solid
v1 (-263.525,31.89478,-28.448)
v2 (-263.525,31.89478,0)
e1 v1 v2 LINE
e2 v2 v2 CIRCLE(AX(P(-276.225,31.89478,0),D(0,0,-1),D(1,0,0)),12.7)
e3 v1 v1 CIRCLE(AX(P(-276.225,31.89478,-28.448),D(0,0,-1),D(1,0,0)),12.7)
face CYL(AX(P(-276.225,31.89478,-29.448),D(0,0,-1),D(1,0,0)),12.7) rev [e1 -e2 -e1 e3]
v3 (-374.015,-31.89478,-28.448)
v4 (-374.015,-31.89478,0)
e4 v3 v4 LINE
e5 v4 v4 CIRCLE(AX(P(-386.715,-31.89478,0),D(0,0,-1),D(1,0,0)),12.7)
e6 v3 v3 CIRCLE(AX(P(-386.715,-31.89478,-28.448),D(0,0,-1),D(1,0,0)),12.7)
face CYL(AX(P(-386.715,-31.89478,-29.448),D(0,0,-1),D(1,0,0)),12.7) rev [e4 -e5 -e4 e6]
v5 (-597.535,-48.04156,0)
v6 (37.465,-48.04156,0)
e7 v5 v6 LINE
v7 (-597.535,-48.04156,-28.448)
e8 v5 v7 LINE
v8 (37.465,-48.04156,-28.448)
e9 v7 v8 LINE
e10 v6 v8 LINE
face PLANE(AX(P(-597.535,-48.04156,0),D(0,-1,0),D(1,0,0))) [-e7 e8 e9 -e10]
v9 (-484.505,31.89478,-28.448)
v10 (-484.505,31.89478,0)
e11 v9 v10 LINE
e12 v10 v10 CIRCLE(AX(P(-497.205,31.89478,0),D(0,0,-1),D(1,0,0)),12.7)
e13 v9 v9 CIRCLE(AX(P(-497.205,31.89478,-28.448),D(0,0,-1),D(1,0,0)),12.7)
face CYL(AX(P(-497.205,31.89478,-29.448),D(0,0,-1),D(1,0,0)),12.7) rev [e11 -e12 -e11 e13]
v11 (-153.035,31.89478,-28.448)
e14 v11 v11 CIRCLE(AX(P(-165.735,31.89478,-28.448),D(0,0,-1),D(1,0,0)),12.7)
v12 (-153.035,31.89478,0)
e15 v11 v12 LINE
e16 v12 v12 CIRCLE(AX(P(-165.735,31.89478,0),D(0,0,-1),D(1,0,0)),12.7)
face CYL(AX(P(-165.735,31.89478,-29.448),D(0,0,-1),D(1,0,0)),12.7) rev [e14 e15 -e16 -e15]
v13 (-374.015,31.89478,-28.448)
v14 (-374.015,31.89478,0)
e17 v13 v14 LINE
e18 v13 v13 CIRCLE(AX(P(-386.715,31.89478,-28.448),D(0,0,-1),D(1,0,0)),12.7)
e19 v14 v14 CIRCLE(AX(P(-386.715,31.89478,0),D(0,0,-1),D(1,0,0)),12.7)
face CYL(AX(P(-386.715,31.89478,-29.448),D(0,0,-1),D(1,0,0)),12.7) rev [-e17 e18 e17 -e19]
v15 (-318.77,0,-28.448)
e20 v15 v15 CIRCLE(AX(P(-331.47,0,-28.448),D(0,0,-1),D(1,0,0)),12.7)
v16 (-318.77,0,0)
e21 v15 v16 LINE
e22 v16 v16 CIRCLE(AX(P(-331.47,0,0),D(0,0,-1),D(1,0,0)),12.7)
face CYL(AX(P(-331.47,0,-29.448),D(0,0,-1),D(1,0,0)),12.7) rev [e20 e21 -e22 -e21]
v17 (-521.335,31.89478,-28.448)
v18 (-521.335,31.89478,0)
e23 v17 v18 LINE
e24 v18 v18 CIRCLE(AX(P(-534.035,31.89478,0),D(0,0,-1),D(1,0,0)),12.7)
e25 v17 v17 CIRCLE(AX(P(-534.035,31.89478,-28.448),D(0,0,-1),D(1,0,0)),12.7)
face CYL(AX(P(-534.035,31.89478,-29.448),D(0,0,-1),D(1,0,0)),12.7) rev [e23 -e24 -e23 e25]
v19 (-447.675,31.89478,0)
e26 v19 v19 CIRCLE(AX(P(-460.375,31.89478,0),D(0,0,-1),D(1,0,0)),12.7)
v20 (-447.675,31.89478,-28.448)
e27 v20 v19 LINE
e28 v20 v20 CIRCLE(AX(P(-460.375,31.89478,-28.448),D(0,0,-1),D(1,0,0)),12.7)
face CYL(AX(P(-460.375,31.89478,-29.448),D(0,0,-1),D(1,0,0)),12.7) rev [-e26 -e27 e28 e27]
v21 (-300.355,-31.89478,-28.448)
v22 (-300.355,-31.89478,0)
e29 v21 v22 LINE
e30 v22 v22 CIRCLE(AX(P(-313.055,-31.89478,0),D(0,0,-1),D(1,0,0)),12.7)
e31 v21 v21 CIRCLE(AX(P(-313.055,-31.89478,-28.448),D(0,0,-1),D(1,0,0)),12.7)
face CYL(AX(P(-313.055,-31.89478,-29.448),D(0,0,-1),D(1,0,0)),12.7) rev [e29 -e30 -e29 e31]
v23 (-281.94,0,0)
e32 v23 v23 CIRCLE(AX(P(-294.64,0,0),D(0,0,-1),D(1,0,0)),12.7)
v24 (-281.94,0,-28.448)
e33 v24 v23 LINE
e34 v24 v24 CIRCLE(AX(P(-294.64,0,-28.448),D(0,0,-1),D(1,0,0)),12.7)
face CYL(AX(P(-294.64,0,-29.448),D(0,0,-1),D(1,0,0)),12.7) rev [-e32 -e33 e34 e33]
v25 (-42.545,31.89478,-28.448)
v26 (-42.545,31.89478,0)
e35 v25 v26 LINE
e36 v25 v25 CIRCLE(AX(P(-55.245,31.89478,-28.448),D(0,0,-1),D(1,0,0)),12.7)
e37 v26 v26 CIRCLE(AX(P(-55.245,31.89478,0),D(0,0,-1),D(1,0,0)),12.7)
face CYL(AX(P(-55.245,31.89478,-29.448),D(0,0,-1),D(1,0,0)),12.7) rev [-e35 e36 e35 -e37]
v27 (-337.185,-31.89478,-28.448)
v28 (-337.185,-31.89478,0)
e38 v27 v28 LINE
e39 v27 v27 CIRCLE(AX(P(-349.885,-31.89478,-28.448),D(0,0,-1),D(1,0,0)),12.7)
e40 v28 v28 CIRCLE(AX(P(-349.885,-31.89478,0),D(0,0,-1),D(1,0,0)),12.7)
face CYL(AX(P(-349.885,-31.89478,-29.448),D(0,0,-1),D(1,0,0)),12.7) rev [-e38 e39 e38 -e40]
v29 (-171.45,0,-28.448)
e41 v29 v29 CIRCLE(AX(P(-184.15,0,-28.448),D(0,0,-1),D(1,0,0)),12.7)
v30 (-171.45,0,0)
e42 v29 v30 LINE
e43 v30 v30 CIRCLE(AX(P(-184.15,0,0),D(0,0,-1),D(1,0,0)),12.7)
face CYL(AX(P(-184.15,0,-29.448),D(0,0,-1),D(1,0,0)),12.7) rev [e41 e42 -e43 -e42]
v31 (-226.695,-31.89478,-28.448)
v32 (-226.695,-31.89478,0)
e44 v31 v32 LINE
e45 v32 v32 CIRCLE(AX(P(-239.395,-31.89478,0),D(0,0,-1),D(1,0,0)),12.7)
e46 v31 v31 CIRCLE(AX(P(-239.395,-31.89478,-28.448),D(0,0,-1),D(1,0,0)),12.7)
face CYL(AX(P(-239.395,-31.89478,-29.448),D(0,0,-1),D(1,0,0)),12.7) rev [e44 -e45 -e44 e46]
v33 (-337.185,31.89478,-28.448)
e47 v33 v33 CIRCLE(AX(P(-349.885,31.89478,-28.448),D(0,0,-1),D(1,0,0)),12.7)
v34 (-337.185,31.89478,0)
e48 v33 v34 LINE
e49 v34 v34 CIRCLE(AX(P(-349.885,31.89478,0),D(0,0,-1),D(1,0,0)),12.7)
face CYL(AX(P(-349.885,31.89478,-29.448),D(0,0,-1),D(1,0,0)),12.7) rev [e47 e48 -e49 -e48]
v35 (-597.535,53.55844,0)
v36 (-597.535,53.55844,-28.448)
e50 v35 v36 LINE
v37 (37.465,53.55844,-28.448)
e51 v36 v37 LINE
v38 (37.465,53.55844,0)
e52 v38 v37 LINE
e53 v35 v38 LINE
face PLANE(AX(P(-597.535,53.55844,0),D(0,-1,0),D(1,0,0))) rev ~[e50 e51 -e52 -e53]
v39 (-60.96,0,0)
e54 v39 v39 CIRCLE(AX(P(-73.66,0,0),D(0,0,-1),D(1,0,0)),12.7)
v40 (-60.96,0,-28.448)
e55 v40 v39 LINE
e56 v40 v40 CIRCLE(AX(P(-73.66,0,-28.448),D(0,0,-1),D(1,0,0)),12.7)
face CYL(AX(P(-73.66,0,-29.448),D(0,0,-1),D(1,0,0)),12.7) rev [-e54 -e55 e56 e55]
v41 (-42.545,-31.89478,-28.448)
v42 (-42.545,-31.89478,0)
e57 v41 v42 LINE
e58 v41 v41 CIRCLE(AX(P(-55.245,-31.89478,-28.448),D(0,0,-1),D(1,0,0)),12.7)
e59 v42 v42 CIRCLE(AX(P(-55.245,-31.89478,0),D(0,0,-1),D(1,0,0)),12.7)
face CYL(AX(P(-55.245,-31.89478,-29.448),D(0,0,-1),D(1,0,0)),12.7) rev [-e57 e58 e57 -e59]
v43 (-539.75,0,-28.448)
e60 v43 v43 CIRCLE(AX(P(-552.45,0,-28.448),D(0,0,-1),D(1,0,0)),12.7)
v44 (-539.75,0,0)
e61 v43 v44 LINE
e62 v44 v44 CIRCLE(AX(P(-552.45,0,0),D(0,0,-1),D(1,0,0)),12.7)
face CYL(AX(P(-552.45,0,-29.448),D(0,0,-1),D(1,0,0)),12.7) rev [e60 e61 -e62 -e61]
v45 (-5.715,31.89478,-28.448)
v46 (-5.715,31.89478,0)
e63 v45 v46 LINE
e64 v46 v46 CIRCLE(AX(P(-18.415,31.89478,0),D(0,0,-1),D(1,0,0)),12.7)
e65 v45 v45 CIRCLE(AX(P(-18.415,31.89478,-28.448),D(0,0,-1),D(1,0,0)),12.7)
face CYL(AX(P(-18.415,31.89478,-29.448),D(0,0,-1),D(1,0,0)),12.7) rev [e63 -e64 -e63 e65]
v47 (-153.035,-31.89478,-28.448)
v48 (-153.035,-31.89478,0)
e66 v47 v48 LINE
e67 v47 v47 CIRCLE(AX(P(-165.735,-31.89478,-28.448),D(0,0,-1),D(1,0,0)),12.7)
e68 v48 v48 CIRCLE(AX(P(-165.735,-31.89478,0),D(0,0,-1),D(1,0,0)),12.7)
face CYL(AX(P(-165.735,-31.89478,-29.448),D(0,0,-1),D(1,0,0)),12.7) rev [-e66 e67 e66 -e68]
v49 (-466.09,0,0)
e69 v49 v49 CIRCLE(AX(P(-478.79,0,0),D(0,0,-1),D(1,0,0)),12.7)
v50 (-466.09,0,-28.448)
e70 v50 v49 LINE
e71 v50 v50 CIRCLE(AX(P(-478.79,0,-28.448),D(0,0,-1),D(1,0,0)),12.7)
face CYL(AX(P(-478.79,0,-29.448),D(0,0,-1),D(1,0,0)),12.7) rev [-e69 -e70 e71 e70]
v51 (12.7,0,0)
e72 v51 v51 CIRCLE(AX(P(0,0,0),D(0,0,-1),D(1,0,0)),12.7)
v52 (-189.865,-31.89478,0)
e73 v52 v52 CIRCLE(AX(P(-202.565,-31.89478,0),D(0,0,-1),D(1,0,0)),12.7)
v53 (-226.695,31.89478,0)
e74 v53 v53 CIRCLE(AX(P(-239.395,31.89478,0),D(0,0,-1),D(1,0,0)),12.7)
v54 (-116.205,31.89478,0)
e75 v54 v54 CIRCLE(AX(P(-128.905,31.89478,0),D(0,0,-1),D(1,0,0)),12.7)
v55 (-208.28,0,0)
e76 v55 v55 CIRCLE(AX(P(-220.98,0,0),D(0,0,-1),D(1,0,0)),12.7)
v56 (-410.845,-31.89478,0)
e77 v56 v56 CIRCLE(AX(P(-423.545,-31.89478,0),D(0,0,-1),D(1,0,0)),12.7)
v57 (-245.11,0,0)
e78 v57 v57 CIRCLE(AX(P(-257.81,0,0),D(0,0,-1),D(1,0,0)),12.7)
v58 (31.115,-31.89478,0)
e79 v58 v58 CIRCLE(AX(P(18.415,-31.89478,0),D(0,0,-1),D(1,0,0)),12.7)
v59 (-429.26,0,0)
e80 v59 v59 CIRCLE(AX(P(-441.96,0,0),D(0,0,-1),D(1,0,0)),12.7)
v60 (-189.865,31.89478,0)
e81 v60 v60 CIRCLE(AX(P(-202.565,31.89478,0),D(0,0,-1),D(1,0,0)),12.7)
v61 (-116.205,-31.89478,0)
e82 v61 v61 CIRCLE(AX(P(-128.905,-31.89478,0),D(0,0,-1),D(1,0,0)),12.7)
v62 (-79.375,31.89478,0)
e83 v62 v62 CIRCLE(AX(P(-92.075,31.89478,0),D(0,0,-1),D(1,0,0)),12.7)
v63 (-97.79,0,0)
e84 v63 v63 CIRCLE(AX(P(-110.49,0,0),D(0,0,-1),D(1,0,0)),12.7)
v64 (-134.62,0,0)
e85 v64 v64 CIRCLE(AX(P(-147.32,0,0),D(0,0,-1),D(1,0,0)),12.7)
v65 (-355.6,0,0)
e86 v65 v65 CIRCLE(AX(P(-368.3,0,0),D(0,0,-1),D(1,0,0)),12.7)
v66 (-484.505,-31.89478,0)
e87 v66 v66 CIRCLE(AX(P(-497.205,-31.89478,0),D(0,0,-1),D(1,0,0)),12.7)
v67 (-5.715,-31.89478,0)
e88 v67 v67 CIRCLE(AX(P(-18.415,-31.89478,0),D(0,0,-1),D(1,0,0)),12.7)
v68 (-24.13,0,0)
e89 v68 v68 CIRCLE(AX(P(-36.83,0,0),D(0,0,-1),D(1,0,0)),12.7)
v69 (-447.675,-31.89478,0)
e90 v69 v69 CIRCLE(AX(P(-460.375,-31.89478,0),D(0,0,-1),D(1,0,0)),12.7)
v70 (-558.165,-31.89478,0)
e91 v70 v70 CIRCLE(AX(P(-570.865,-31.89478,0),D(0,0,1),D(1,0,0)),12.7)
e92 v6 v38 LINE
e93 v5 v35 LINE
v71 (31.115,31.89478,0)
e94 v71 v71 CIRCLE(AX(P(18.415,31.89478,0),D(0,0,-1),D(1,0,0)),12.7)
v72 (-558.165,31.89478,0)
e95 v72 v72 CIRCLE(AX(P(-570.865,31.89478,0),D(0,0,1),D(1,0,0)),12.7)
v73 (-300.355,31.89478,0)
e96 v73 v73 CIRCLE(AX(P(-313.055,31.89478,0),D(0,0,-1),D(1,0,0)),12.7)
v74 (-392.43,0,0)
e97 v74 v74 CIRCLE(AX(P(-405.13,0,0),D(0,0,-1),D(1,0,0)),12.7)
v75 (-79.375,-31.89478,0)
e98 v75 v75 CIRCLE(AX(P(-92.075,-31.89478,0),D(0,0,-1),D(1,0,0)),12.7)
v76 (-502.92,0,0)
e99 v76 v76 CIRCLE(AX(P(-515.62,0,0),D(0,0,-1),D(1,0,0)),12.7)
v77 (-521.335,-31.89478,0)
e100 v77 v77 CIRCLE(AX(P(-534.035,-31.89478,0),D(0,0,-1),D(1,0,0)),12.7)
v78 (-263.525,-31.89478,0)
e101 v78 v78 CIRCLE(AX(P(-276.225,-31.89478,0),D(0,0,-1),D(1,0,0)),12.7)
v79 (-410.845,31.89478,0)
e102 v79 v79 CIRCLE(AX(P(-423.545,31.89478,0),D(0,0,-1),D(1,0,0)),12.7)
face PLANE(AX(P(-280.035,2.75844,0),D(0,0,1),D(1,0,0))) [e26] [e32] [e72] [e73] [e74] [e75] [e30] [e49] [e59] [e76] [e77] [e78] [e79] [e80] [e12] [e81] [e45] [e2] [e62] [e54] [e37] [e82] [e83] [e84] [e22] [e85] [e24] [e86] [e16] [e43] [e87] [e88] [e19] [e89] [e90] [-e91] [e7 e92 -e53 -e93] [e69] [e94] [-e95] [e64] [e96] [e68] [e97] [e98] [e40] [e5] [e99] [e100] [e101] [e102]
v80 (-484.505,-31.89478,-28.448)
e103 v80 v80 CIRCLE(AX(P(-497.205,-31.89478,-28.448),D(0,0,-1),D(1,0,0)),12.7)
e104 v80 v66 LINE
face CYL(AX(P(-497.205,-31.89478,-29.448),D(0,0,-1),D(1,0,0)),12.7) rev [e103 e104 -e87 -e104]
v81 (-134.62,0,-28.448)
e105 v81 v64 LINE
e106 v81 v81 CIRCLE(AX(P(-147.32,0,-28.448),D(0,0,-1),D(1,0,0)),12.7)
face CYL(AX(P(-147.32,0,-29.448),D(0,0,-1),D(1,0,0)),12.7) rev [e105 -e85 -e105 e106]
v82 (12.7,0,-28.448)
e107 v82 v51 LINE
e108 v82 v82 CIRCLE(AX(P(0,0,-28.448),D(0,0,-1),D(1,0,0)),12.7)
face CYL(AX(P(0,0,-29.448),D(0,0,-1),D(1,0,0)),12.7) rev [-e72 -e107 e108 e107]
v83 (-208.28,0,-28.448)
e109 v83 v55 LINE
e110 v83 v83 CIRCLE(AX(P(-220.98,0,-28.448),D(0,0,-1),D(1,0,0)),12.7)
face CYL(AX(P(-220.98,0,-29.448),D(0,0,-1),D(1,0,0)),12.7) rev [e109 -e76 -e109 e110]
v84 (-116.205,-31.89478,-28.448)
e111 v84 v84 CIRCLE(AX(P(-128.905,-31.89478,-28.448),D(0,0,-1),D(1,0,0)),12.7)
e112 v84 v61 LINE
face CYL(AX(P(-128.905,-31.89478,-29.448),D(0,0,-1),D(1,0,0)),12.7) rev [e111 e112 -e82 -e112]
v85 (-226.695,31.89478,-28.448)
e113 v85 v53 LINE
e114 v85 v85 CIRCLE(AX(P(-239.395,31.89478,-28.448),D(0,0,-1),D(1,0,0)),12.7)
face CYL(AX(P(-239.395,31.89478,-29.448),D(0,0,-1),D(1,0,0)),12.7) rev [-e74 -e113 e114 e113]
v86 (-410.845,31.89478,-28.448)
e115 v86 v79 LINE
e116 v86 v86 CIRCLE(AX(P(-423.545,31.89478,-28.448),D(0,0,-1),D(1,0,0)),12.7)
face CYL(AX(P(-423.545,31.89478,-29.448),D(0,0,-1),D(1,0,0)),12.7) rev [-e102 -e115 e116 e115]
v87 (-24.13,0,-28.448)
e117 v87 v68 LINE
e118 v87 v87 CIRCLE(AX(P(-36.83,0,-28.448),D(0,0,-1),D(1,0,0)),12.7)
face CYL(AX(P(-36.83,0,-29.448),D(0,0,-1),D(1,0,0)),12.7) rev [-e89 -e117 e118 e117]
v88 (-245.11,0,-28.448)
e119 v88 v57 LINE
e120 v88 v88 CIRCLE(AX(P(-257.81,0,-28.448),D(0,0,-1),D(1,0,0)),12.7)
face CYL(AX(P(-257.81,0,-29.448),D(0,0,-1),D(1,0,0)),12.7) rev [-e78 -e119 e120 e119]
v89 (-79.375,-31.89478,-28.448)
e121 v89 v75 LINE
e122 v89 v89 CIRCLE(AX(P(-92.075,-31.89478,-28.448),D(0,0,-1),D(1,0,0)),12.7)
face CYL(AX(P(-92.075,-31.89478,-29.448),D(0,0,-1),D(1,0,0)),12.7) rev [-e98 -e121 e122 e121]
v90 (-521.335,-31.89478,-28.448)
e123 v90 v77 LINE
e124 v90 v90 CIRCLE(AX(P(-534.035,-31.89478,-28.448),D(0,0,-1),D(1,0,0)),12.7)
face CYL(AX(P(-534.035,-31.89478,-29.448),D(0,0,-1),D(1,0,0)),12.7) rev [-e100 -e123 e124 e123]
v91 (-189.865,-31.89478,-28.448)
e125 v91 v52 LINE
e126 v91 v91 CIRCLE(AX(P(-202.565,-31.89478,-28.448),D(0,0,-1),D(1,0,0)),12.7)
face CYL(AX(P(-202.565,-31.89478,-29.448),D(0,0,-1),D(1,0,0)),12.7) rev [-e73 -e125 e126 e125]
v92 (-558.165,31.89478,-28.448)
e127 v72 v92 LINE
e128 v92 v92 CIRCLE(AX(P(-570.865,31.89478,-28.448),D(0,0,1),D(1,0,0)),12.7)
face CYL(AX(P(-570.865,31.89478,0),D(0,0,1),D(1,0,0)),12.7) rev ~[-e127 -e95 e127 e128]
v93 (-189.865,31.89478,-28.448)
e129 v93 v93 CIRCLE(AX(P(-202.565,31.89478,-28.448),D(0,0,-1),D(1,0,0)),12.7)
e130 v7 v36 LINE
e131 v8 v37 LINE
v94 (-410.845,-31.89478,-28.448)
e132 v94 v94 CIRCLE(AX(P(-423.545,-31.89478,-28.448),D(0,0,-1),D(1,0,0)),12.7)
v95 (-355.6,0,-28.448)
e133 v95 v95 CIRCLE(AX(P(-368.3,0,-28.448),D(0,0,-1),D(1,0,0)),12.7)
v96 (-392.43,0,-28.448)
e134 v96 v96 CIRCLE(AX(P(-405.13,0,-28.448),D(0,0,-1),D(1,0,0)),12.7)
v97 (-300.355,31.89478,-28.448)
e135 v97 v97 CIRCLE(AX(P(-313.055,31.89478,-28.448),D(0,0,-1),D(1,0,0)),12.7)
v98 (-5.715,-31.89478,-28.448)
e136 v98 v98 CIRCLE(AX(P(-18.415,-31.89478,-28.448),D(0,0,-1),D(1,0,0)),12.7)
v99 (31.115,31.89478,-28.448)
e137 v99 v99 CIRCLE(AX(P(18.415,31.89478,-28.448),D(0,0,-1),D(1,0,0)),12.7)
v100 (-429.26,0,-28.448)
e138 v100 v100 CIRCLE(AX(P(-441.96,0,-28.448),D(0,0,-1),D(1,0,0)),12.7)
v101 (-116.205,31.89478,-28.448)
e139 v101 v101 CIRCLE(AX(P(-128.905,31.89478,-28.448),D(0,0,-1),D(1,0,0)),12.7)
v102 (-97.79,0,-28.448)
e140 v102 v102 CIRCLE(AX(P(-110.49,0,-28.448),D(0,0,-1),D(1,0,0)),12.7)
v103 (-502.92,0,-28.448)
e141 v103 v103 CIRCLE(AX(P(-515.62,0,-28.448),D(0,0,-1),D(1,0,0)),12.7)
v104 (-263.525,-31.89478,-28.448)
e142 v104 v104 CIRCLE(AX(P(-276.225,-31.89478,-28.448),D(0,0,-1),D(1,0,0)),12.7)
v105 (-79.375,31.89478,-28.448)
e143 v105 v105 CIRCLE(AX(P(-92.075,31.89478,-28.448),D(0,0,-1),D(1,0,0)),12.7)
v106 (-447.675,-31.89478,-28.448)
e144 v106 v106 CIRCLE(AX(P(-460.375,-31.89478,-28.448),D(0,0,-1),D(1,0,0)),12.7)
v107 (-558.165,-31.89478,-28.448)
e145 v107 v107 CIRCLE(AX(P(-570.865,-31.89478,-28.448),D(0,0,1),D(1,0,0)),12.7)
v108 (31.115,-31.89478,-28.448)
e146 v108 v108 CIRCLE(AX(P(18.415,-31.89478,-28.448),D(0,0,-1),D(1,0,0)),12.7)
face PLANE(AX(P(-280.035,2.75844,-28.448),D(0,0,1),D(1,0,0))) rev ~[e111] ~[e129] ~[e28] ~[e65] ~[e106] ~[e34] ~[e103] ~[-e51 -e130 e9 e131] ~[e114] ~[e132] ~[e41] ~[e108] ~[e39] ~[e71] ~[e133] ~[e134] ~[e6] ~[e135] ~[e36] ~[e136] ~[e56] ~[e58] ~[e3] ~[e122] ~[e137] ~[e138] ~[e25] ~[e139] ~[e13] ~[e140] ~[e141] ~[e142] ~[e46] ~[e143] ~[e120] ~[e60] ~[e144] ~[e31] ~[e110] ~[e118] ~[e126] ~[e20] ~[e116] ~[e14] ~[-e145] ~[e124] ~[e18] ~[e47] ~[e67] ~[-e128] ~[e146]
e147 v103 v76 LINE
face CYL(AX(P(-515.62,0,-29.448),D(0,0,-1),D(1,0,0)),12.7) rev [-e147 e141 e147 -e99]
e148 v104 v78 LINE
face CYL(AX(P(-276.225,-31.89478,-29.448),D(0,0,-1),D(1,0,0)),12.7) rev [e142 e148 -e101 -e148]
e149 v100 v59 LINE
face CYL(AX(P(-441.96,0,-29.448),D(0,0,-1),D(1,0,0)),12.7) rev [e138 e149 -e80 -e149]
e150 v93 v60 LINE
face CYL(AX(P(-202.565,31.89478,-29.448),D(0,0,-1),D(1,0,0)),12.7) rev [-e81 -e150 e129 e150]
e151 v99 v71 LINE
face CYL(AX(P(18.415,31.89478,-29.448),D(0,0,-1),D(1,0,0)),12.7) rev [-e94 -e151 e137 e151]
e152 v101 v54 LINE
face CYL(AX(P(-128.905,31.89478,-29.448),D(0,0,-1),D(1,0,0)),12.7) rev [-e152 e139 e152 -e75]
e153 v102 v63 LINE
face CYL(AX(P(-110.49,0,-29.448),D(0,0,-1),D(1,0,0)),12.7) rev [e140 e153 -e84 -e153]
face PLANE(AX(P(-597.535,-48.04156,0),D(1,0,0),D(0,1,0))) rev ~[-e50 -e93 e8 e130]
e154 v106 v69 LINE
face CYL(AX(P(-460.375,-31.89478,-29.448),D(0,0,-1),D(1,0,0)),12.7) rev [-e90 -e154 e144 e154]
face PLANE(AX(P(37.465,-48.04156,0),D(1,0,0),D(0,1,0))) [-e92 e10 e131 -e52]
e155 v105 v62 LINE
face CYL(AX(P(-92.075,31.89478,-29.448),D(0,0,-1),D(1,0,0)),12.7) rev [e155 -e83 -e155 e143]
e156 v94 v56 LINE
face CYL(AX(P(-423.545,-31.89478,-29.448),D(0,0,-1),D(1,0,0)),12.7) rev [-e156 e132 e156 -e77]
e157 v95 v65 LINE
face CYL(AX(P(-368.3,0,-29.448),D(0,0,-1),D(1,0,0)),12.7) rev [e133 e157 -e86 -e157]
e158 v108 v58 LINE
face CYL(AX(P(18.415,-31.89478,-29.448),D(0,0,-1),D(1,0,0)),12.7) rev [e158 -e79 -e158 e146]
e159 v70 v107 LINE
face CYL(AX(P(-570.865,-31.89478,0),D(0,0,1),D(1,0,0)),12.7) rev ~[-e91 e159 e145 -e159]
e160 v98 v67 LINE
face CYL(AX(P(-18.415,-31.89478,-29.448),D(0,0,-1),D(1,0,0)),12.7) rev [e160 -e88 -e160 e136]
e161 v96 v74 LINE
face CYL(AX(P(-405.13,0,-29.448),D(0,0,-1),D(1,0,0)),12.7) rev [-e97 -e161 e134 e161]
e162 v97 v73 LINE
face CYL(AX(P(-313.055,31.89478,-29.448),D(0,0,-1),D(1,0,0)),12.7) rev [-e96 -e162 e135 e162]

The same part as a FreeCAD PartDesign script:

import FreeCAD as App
import Part
import Sketcher
Q = App.Units.Quantity


def add_polygon(sketch, points):
    """Adds a closed chain of lines whose ends are joined by coincident constraints."""
    first, n = sketch.GeometryCount, len(points)
    for a, b in zip(points, points[1:] + points[:1]):
        sketch.addGeometry(Part.LineSegment(App.Vector(*a, 0), App.Vector(*b, 0)), False)
    for i in range(n):
        sketch.addConstraint(Sketcher.Constraint("Coincident", first + i, 2, first + (i + 1) % n, 1))

doc = App.newDocument("Part")
params = doc.addObject("Spreadsheet::Sheet", "Params")
for row, (alias, value) in enumerate([
    ("sketch1_width", "25 in"),
    ("sketch1_height", "4 in"),
    ("pad1_length", "1.12 in"),
    ("sketch2_diameter", "1 in"),
    ("pocket1_length", "30.448 mm"),
    ("linearpattern_pitch", "1.45 in"),
    ("sketch3_diameter", "1 in"),
], start=1):
    params.set(f"A{row}", alias)
    params.set(f"B{row}", "=" + value)
    params.setAlias(f"B{row}", alias)

body = doc.addObject("PartDesign::Body", "Body")

# Sketch on XY plane
sketch1 = body.newObject("Sketcher::SketchObject", "Sketch")
sketch1.AttachmentSupport = (doc.getObject("XY_Plane"), [""])
sketch1.MapMode = "FlatFace"
add_polygon(sketch1, [(-598, 54), (-598, -48), (37, -48), (37, 54)])  # lines 0-3
sketch1.addConstraint(Sketcher.Constraint("Vertical", 0))
sketch1.addConstraint(Sketcher.Constraint("Horizontal", 1))
sketch1.addConstraint(Sketcher.Constraint("Vertical", 2))
sketch1.addConstraint(Sketcher.Constraint("Horizontal", 3))
sketch1.addConstraint(Sketcher.Constraint("DistanceX", 1, 1, 1, 2, Q("25 in")))
sketch1.addConstraint(Sketcher.Constraint("DistanceY", 0, 2, 0, 1, Q("4 in")))
sketch1.addConstraint(Sketcher.Constraint("DistanceX", 0, 2, -1, 1, Q("23.525 in")))
sketch1.addConstraint(Sketcher.Constraint("DistanceY", 0, 2, -1, 1, Q("1.8914 in")))
sketch1.setExpression("Constraints[8]", "Params.sketch1_width")
sketch1.setExpression("Constraints[9]", "Params.sketch1_height")
pad1 = body.newObject("PartDesign::Pad", "Pad")
pad1.Profile = sketch1
pad1.setExpression("Length", "Params.pad1_length")
pad1.Reversed = True

# Sketch on XY plane
sketch2 = body.newObject("Sketcher::SketchObject", "Sketch001")
sketch2.AttachmentSupport = (doc.getObject("XY_Plane"), [""])
sketch2.MapMode = "FlatFace"
sketch2.AttachmentOffset = App.Placement(App.Vector(0, 0, -29.448), App.Rotation())
sketch2.addGeometry(Part.Circle(App.Vector(0, 0, 0), App.Vector(0, 0, 1), 13), False)
sketch2.addGeometry(Part.Circle(App.Vector(18, 32, 0), App.Vector(0, 0, 1), 13), False)
sketch2.addGeometry(Part.Circle(App.Vector(18, -32, 0), App.Vector(0, 0, 1), 13), False)
sketch2.addConstraint(Sketcher.Constraint("Coincident", 0, 3, -1, 1))
sketch2.addConstraint(Sketcher.Constraint("Equal", 0, 1))
sketch2.addConstraint(Sketcher.Constraint("Equal", 1, 2))
sketch2.addConstraint(Sketcher.Constraint("Symmetric", 1, 3, 2, 3, -1))
sketch2.addConstraint(Sketcher.Constraint("Diameter", 0, Q("1 in")))
sketch2.addConstraint(Sketcher.Constraint("DistanceX", -1, 1, 1, 3, Q("0.725 in")))
sketch2.addConstraint(Sketcher.Constraint("DistanceY", -1, 1, 1, 3, Q("1.2557 in")))
sketch2.setExpression("Constraints[4]", "Params.sketch2_diameter")
pocket1 = body.newObject("PartDesign::Pocket", "Pocket")
pocket1.Profile = sketch2
pocket1.setExpression("Length", "Params.pocket1_length")
pocket1.Reversed = True
doc.recompute()

linearpattern = body.newObject("PartDesign::LinearPattern", "LinearPattern")
linearpattern.Originals = [pocket1]
linearpattern.Direction = (doc.getObject("X_Axis"), [""])
linearpattern.Mode = "offset"
linearpattern.setExpression("Offset", "Params.linearpattern_pitch")
linearpattern.Occurrences = 16
linearpattern.Reversed = True
body.Tip = linearpattern

# Sketch on XY plane
sketch3 = body.newObject("Sketcher::SketchObject", "Sketch002")
sketch3.AttachmentSupport = (doc.getObject("XY_Plane"), [""])
sketch3.MapMode = "FlatFace"
sketch3.addGeometry(Part.Circle(App.Vector(-571, 32, 0), App.Vector(0, 0, 1), 13), False)
sketch3.addGeometry(Part.Circle(App.Vector(-571, -32, 0), App.Vector(0, 0, 1), 13), False)
sketch3.addConstraint(Sketcher.Constraint("Equal", 0, 1))
sketch3.addConstraint(Sketcher.Constraint("Symmetric", 0, 3, 1, 3, -1))
sketch3.addConstraint(Sketcher.Constraint("Diameter", 0, Q("1 in")))
sketch3.addConstraint(Sketcher.Constraint("DistanceX", 0, 3, -1, 1, Q("22.475 in")))
sketch3.addConstraint(Sketcher.Constraint("DistanceY", -1, 1, 0, 3, Q("1.2557 in")))
sketch3.setExpression("Constraints[2]", "Params.sketch3_diameter")
pocket2 = body.newObject("PartDesign::Pocket", "Pocket001")
pocket2.Profile = sketch3
pocket2.Type = "ThroughAll"
pocket2.Midplane = True

doc.recompute()
